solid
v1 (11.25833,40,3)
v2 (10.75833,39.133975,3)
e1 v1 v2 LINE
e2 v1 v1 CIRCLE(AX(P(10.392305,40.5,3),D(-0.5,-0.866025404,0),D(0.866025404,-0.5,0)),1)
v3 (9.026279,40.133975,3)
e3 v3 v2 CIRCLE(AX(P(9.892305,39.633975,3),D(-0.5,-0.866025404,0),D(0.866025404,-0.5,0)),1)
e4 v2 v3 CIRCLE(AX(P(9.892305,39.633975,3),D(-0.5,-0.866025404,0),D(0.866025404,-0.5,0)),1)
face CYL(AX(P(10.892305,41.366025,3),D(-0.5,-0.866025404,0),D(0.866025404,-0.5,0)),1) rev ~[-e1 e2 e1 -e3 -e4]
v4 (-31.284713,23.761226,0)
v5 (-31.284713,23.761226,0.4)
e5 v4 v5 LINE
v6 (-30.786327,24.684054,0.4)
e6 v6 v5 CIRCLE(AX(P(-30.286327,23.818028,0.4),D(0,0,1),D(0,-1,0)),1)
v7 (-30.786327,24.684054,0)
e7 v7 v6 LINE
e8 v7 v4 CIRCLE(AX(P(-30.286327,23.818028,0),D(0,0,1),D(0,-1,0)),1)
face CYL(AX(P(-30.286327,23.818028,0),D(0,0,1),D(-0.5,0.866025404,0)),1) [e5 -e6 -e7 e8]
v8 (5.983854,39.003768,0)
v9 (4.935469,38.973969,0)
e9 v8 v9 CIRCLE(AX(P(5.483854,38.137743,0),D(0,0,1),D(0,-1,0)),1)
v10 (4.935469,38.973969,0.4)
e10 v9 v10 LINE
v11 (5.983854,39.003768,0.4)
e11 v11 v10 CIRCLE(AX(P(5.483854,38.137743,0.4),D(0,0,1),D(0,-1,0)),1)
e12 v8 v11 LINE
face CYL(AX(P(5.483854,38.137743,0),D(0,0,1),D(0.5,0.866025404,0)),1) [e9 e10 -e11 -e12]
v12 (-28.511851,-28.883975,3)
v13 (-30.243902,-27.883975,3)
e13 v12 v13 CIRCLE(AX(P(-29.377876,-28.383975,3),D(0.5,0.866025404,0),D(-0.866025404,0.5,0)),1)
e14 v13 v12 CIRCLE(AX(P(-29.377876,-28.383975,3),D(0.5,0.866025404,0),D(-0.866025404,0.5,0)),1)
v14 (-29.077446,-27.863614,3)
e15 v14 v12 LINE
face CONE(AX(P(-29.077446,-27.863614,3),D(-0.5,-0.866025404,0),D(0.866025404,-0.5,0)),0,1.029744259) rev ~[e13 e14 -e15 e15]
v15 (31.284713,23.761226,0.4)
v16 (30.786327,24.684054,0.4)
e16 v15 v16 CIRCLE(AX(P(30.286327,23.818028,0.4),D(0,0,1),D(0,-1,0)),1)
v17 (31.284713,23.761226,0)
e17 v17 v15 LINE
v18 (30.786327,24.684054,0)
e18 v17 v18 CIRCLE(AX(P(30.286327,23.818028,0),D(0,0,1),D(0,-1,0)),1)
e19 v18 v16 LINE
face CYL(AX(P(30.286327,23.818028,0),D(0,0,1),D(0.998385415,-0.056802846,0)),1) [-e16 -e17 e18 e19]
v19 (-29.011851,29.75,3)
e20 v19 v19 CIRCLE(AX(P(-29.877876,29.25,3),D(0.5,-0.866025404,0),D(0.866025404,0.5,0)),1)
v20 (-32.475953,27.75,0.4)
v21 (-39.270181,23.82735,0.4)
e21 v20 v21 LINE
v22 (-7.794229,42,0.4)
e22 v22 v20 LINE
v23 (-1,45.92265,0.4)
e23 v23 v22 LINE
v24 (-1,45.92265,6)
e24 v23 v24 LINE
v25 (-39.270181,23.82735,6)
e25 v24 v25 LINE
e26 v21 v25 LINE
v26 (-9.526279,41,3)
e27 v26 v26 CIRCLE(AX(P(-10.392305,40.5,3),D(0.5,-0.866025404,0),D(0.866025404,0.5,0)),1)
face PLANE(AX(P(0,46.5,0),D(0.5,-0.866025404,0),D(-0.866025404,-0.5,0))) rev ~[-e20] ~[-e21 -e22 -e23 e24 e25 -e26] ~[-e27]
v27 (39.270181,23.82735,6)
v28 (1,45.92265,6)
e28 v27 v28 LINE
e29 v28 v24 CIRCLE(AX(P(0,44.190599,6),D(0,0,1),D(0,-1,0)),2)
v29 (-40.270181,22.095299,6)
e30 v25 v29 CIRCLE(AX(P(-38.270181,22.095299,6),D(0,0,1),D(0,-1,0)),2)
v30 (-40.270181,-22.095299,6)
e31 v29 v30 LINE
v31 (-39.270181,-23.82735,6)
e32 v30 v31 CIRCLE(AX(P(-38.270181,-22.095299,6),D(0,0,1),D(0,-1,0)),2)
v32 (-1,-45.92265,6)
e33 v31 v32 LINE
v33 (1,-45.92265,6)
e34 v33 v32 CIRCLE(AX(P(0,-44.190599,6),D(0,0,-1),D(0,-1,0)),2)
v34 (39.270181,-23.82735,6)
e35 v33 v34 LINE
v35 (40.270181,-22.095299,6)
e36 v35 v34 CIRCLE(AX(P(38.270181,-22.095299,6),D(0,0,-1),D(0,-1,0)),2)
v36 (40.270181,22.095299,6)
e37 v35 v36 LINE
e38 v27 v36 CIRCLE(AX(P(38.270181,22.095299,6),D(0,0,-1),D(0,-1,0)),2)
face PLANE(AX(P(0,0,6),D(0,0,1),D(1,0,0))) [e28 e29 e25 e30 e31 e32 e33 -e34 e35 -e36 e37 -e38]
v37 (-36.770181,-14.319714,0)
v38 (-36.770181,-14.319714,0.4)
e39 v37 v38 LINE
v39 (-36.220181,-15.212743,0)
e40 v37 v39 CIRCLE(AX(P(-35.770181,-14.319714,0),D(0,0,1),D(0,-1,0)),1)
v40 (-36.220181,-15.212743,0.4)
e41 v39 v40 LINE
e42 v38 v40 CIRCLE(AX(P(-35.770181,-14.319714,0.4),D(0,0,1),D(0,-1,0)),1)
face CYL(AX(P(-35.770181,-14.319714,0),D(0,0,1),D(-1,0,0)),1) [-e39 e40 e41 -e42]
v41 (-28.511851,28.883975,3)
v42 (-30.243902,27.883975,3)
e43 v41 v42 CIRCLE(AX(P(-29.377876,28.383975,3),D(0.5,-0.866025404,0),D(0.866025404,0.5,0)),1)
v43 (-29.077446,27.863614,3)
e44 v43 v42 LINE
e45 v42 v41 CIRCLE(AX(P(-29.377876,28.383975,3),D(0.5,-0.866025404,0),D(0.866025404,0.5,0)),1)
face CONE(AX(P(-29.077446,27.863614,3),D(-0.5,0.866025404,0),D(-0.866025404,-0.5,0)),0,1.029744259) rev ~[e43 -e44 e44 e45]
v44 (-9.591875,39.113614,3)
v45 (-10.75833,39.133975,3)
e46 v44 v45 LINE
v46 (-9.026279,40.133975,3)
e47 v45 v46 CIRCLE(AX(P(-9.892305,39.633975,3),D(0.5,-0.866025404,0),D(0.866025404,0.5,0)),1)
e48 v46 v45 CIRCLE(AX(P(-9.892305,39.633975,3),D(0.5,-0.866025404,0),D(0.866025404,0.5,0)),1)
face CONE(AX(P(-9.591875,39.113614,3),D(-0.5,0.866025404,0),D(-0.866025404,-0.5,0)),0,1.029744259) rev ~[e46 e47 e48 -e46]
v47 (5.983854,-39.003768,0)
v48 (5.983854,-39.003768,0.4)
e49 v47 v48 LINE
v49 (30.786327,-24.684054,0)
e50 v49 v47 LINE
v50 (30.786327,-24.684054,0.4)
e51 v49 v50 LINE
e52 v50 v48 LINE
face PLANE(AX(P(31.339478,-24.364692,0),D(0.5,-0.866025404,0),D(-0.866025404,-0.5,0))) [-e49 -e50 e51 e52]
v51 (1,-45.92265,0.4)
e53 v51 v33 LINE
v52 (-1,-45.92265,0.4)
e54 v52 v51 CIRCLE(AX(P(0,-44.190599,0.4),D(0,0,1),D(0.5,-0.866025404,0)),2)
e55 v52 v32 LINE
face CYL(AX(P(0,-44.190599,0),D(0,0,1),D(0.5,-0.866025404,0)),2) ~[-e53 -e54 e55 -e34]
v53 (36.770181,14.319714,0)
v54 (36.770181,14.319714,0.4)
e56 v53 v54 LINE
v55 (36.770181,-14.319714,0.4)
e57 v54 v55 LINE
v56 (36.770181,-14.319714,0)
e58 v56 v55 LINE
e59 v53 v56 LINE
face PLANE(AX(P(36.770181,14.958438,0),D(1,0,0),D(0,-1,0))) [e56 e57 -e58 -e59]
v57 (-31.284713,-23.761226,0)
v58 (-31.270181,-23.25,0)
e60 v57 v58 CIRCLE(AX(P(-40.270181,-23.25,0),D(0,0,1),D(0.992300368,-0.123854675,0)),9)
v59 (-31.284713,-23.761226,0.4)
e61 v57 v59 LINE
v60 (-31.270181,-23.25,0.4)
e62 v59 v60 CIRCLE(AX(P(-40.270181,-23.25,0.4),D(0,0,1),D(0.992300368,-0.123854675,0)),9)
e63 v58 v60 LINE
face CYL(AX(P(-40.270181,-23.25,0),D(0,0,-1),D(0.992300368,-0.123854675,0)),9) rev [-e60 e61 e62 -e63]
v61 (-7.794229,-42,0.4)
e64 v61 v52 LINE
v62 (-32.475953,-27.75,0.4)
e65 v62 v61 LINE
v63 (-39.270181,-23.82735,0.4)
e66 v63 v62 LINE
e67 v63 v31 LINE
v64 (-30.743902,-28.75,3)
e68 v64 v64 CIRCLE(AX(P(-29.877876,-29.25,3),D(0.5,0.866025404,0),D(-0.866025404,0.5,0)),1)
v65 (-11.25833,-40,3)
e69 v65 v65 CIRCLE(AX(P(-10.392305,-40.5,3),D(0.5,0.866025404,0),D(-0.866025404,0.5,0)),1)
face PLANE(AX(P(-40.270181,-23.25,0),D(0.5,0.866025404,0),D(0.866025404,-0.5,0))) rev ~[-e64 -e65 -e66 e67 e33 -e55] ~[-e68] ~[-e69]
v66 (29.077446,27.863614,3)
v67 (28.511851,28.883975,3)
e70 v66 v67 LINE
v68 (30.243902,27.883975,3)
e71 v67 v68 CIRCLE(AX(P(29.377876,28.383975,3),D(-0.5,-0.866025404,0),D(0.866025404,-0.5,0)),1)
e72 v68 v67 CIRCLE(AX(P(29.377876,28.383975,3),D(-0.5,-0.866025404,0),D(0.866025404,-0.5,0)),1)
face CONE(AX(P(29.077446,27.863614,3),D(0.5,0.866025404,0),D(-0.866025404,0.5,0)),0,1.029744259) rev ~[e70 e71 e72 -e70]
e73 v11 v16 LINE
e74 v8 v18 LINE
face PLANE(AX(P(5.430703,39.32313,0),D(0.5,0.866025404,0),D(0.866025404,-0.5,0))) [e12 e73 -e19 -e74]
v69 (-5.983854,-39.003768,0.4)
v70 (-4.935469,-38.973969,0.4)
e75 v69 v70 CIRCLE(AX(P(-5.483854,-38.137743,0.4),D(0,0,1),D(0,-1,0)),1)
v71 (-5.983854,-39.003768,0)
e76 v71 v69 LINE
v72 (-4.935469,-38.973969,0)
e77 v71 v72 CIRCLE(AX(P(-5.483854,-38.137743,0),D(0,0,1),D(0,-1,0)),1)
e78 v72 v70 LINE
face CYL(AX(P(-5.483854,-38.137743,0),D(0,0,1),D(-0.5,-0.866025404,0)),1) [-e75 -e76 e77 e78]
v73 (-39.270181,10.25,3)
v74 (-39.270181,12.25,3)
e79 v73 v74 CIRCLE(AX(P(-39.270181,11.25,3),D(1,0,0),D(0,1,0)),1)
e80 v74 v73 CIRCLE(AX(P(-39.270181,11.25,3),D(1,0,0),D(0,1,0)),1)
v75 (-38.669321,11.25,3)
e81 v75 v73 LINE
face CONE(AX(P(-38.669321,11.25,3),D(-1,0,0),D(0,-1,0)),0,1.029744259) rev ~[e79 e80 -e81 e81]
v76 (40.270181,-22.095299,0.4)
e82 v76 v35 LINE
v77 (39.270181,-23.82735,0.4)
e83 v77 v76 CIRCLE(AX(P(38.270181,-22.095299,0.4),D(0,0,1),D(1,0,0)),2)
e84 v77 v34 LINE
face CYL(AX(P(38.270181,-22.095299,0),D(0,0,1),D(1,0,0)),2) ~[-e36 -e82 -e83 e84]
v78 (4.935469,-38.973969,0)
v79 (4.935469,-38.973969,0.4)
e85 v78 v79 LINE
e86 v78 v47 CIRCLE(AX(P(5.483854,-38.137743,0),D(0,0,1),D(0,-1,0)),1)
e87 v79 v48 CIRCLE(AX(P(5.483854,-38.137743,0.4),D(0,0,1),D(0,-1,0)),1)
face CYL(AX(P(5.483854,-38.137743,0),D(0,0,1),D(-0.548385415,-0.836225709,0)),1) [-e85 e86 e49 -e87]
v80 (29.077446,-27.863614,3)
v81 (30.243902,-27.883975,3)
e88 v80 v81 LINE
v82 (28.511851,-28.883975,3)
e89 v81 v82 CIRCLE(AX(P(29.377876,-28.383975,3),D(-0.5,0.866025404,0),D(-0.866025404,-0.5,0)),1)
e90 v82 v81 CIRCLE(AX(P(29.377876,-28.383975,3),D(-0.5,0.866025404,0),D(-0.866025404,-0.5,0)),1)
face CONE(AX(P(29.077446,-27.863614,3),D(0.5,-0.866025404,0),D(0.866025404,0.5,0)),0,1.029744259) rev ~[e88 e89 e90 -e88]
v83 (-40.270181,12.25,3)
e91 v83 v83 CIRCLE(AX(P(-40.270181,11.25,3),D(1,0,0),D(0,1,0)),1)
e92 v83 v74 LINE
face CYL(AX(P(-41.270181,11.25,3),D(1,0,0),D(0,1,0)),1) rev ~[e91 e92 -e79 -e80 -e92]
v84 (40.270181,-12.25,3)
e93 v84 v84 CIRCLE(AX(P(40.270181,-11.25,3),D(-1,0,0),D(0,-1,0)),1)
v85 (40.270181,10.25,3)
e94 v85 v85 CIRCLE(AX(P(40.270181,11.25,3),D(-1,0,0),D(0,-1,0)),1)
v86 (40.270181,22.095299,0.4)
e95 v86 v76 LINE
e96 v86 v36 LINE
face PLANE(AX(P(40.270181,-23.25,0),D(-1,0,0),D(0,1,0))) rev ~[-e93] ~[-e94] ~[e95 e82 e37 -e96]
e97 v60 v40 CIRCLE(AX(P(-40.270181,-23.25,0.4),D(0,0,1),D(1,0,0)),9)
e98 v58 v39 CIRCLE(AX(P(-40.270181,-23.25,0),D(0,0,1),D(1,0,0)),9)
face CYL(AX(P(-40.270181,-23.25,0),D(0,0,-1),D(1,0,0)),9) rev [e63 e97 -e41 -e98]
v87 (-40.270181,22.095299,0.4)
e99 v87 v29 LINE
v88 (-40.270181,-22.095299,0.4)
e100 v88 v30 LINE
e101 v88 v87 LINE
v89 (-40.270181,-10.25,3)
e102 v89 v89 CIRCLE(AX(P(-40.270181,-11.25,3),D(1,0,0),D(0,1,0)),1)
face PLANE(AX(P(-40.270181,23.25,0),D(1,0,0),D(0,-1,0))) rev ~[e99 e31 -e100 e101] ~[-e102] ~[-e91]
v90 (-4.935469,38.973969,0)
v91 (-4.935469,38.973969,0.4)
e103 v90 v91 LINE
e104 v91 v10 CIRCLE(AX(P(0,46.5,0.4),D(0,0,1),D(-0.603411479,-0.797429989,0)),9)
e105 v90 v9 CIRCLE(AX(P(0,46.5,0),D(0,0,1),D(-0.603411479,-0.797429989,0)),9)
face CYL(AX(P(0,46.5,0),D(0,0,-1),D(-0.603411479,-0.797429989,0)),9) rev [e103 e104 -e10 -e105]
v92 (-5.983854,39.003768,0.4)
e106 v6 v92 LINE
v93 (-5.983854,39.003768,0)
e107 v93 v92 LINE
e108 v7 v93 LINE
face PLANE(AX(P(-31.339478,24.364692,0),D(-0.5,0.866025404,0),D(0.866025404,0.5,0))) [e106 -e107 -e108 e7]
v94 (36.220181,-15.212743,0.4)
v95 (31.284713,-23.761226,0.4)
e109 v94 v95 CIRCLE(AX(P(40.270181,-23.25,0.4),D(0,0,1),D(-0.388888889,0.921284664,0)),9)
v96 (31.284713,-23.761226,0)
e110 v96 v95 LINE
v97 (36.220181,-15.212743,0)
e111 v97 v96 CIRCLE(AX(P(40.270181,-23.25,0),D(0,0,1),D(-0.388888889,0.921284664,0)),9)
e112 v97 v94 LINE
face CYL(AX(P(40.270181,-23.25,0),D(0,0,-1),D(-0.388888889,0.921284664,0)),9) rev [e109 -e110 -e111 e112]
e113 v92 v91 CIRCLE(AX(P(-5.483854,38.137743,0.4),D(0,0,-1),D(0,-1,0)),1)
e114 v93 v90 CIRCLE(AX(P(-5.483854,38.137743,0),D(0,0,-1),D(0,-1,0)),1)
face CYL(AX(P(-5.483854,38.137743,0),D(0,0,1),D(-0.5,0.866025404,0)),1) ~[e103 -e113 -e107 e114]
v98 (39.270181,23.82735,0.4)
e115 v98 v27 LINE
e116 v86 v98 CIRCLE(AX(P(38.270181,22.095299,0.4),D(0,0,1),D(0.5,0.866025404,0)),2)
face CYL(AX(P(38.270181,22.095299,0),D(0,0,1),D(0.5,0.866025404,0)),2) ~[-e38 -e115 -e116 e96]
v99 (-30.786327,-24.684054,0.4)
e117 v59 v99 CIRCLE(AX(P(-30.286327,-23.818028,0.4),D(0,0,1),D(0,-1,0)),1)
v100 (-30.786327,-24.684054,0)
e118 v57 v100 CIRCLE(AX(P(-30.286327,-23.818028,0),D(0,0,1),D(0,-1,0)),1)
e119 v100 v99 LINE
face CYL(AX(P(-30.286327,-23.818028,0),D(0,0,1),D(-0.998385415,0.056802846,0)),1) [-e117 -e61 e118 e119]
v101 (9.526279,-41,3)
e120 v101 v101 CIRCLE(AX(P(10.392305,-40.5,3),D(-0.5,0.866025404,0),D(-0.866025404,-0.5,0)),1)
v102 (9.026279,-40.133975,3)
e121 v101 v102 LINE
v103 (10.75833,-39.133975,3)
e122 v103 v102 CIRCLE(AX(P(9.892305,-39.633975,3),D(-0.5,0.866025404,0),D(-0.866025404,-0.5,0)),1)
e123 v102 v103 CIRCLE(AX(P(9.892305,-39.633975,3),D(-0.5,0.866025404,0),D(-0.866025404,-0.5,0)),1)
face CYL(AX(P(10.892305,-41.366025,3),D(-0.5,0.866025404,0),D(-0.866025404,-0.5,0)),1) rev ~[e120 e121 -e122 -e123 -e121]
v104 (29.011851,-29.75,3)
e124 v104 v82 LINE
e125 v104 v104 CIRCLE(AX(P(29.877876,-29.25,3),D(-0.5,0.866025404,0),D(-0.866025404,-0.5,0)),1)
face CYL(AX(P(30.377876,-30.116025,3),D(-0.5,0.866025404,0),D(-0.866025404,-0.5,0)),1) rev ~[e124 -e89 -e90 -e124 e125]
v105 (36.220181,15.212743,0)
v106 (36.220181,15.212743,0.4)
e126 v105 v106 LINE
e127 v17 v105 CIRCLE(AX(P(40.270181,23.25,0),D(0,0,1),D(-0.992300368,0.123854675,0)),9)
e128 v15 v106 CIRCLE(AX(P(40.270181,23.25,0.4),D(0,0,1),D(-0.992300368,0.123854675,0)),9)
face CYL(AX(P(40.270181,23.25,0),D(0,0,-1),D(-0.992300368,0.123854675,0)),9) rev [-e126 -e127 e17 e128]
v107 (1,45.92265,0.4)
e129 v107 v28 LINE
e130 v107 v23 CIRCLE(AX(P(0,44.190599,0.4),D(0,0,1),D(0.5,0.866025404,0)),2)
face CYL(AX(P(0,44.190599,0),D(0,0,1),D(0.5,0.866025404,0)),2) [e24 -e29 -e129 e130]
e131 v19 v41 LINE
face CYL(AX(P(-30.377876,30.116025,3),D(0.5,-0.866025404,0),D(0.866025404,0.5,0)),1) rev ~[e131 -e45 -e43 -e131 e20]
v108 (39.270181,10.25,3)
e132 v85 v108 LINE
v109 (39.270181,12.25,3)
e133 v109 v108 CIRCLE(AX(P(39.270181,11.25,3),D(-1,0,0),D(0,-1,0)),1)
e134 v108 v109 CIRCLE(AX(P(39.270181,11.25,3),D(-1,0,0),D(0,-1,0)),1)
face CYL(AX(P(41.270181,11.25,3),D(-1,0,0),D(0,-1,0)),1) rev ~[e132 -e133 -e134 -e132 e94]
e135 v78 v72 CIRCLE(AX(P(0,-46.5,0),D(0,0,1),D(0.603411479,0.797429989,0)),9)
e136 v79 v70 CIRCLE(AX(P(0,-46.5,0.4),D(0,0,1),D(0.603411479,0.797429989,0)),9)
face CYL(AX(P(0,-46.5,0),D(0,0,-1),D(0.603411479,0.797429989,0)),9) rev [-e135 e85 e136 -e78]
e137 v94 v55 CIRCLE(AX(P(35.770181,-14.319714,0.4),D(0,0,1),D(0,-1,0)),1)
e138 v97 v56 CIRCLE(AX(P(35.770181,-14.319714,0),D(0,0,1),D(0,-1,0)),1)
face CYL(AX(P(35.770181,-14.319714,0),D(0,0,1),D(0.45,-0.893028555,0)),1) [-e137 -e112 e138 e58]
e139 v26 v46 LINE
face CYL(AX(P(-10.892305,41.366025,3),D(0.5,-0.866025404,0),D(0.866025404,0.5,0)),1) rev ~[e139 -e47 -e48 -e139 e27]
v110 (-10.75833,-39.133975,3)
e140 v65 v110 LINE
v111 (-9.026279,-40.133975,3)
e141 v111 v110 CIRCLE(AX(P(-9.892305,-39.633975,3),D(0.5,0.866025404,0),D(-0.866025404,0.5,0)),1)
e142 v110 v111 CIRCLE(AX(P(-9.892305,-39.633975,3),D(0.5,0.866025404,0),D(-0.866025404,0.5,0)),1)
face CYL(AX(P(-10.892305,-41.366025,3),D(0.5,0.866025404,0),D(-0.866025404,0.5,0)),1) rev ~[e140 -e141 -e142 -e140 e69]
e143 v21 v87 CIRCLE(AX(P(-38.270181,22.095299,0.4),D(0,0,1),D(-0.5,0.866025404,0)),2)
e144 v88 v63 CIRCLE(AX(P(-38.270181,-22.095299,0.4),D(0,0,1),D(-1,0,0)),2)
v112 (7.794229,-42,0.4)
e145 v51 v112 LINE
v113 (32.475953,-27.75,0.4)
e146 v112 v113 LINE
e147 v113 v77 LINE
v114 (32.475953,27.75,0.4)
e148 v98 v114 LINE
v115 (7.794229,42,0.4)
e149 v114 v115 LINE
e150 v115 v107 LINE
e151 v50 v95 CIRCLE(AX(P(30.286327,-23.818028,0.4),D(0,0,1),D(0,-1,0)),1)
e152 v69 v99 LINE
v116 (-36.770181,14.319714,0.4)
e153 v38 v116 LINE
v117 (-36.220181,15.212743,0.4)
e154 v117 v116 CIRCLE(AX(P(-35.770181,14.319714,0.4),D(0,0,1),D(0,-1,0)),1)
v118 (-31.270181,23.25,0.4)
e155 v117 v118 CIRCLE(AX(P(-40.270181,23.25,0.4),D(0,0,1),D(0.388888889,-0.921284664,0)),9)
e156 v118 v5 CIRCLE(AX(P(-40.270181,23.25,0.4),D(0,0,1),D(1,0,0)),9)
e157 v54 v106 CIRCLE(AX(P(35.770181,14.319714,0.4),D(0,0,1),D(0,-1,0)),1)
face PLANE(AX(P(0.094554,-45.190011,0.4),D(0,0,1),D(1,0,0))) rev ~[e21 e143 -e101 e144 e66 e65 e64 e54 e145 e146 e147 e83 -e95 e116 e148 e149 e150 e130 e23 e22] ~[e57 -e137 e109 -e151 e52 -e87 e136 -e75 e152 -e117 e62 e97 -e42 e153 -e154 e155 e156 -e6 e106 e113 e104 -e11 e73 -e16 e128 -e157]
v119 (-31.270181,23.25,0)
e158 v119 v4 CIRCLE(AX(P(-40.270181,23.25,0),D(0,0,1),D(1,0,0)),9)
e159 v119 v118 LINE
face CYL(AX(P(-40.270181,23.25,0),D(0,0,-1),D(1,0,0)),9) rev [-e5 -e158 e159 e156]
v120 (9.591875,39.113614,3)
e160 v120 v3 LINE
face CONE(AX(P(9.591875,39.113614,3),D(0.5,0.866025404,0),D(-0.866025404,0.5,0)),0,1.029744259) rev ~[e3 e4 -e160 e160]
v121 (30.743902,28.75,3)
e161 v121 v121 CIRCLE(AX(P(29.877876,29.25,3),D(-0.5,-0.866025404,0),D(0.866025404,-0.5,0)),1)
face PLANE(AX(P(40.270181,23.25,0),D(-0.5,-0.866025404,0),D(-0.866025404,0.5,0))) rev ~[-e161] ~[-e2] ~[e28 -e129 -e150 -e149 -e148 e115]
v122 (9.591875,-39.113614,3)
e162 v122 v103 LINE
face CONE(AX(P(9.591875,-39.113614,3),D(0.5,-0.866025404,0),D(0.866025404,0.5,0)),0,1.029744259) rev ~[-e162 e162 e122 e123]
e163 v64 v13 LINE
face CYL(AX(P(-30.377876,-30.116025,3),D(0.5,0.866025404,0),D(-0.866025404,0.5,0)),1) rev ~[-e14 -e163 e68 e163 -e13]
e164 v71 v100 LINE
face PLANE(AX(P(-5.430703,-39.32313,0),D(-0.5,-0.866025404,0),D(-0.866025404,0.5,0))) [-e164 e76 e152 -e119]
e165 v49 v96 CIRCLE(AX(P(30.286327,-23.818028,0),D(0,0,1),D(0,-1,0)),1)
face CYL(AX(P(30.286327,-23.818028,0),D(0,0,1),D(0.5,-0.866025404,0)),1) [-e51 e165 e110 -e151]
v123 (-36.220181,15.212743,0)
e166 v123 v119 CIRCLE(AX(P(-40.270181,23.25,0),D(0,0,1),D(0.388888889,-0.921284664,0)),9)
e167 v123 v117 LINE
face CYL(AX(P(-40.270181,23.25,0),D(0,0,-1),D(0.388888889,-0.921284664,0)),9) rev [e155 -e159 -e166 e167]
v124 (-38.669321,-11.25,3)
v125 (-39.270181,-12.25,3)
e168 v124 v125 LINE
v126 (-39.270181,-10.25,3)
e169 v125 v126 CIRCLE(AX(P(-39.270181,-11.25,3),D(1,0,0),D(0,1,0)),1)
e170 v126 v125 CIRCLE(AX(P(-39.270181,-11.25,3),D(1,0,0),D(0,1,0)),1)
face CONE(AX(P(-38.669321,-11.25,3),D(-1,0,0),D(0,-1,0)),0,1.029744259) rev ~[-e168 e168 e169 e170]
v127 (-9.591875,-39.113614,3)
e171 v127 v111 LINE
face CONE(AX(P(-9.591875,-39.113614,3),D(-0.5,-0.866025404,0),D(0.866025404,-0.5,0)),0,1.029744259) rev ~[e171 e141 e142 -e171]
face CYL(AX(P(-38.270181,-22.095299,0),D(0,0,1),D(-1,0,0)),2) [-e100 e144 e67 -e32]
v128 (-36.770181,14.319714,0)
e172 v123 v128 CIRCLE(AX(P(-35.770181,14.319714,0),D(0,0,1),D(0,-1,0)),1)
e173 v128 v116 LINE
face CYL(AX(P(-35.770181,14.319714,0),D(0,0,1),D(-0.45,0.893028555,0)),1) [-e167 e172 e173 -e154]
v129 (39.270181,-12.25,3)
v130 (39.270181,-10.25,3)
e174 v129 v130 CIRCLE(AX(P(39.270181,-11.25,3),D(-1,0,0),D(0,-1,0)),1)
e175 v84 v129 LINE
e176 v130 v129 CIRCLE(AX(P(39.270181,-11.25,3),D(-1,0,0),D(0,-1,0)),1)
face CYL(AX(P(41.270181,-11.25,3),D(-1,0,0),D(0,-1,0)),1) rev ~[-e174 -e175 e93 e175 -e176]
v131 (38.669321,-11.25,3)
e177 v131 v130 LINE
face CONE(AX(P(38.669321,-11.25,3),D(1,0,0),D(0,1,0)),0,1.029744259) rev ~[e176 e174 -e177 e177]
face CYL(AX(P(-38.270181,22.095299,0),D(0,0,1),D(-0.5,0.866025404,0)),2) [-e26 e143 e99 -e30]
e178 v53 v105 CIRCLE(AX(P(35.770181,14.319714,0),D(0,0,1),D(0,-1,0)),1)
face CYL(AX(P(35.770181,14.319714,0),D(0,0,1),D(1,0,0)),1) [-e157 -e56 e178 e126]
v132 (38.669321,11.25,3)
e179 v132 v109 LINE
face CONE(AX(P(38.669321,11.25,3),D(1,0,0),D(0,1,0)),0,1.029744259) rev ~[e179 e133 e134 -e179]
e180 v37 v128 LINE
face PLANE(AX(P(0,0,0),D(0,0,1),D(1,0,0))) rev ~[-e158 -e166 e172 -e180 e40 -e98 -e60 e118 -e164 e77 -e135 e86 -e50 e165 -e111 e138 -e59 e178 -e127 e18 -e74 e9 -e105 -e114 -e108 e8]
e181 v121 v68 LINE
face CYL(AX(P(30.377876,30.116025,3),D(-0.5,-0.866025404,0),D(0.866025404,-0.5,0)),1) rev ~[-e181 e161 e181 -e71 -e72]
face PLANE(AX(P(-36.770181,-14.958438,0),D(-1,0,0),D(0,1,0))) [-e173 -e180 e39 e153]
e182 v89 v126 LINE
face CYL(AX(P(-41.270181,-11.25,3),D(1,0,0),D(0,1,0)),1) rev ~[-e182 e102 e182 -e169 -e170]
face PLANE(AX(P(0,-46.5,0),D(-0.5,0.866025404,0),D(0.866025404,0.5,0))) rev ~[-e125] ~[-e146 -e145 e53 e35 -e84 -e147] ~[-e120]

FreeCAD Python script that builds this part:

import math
import FreeCAD as App
import Part
import Sketcher

V = App.Vector
Q = App.Units.Quantity


def edges_at(feature, points):
    """Names of the edges that pass closest to the given points."""
    edges = feature.Shape.Edges
    near = lambda p: min(range(len(edges)), key=lambda i: edges[i].distToShape(Part.Vertex(*p))[0])
    return sorted({f"Edge{near(p) + 1}" for p in points})

doc = App.newDocument("Part")
params = doc.addObject("Spreadsheet::Sheet", "Params")
for row, (alias, value) in enumerate([
    ("sketch1_height", "46.5 mm"),
    ("pad1_length", "6 mm"),
    ("sketch2_diameter", "2 mm"),
    ("hole_diameter", "2 mm"),
    ("hole_depth", "1 mm"),
    ("sketch3_diameter", "2 mm"),
    ("hole2_diameter", "2 mm"),
    ("hole2_depth", "1 mm"),
    ("sketch4_diameter", "2 mm"),
    ("hole3_diameter", "2 mm"),
    ("hole3_depth", "1 mm"),
    ("sketch5_diameter", "2 mm"),
    ("hole4_diameter", "2 mm"),
    ("hole4_depth", "1 mm"),
    ("sketch6_diameter", "2 mm"),
    ("hole5_diameter", "2 mm"),
    ("hole5_depth", "1 mm"),
    ("sketch7_diameter", "2 mm"),
    ("hole6_diameter", "2 mm"),
    ("hole6_depth", "1 mm"),
    ("fillet_radius", "2 mm"),
    ("sketch8_radius", "9 mm"),
    ("sketch8_height", "28.5 mm"),
    ("sketch8_length", "28.5 mm"),
    ("pocket1_length", "0.4 mm"),
    ("fillet2_radius", "1 mm"),
], start=1):
    params.set(f"A{row}", alias)
    params.set(f"B{row}", "=" + value)
    params.setAlias(f"B{row}", alias)

body = doc.addObject("PartDesign::Body", "Body")

# Sketch on XY plane
sketch1 = body.newObject("Sketcher::SketchObject", "Sketch")
sketch1.AttachmentSupport = (doc.getObject("XY_Plane"), [""])
sketch1.MapMode = "FlatFace"
sketch1.addGeometry([
    Part.LineSegment(V(40, 23, 0), V(0, 46, 0)),  # 0
    Part.LineSegment(V(0, 46, 0), V(-40, 23, 0)),  # 1
    Part.LineSegment(V(-40, 23, 0), V(-40, -23, 0)),  # 2
    Part.LineSegment(V(-40, -23, 0), V(0, -46, 0)),  # 3
    Part.LineSegment(V(0, -46, 0), V(40, -23, 0)),  # 4
    Part.LineSegment(V(40, -23, 0), V(40, 23, 0)),  # 5
], False)
sketch1.addConstraint([
    Sketcher.Constraint("Coincident", 0, 2, 1, 1),
    Sketcher.Constraint("Coincident", 1, 2, 2, 1),
    Sketcher.Constraint("Coincident", 2, 2, 3, 1),
    Sketcher.Constraint("Coincident", 3, 2, 4, 1),
    Sketcher.Constraint("Coincident", 4, 2, 5, 1),
    Sketcher.Constraint("Coincident", 5, 2, 0, 1),
    Sketcher.Constraint("Vertical", 2),
    Sketcher.Constraint("Vertical", 5),
    Sketcher.Constraint("Symmetric", 0, 2, 3, 2, -1, 1),
    Sketcher.Constraint("Symmetric", 1, 2, 4, 2, -1, 1),
    Sketcher.Constraint("PointOnObject", 0, 2, -2),
    Sketcher.Constraint("Parallel", 0, 3),
    Sketcher.Constraint("Horizontal", 2, 2, 4, 2),
    Sketcher.Constraint("Angle", 0, Q("150 deg")),
    Sketcher.Constraint("DistanceY", 2, 2, 2, 1, 46.5),
    Sketcher.Constraint("DistanceY", 3, 2, 0, 2, 93.0),
])
sketch1.setExpression("Constraints[14]", "Params.sketch1_height")
pad1 = body.newObject("PartDesign::Pad", "Pad")
pad1.Profile = sketch1
pad1.setExpression("Length", "Params.pad1_length")

# Sketch on YZ plane
sketch2 = body.newObject("Sketcher::SketchObject", "Sketch001")
sketch2.AttachmentSupport = (doc.getObject("YZ_Plane"), [""])
sketch2.MapMode = "FlatFace"
sketch2.AttachmentOffset = App.Placement(V(0, 0, -40.270181), App.Rotation())
sketch2.addGeometry([
    Part.Circle(V(11.2, 3, 0), V(0, 0, 1), 1),
    Part.Circle(V(-11.2, 3, 0), V(0, 0, 1), 1),
], False)
sketch2.addConstraint([
    Sketcher.Constraint("Equal", 0, 1),
    Sketcher.Constraint("Symmetric", 0, 3, 1, 3, -2),
    Sketcher.Constraint("Diameter", 0, 2.0),
    Sketcher.Constraint("DistanceY", -1, 1, 0, 3, 3.0),
    Sketcher.Constraint("DistanceX", 1, 3, 0, 3, 22.5),
])
sketch2.setExpression("Constraints[2]", "Params.sketch2_diameter")
doc.recompute()
hole = body.newObject("PartDesign::Hole", "Hole")
hole.Profile = sketch2
hole.ThreadType = "None"
hole.setExpression("Diameter", "Params.hole_diameter")
hole.DepthType = "Dimension"
hole.setExpression("Depth", "Params.hole_depth")
hole.DrillPoint = "Angled"
hole.DrillPointAngle = 118
hole.Reversed = True

# Sketch on an angled plane
sketch3 = body.newObject("Sketcher::SketchObject", "Sketch002")
sketch3.Placement = App.Placement(V(-20.135091, 34.875, 0), App.Rotation(V(-0.866025404, -0.5, 0), V(0, 0, 1), V(-0.5, 0.866025404, 0), "ZXY"))
sketch3.addGeometry([
    Part.Circle(V(-11.3, 3, 0), V(0, 0, 1), 1),
    Part.Circle(V(11.3, 3, 0), V(0, 0, 1), 1),
], False)
sketch3.addConstraint([
    Sketcher.Constraint("Equal", 0, 1),
    Sketcher.Constraint("Symmetric", 0, 3, 1, 3, -2),
    Sketcher.Constraint("Diameter", 0, 2.0),
    Sketcher.Constraint("DistanceY", -1, 1, 0, 3, 3.0),
    Sketcher.Constraint("DistanceX", 0, 3, 1, 3, 22.5),
])
sketch3.setExpression("Constraints[2]", "Params.sketch3_diameter")
doc.recompute()
hole2 = body.newObject("PartDesign::Hole", "Hole001")
hole2.Profile = sketch3
hole2.ThreadType = "None"
hole2.setExpression("Diameter", "Params.hole2_diameter")
hole2.DepthType = "Dimension"
hole2.setExpression("Depth", "Params.hole2_depth")
hole2.DrillPoint = "Angled"
hole2.DrillPointAngle = 118

# Sketch on an angled plane
sketch4 = body.newObject("Sketcher::SketchObject", "Sketch003")
sketch4.Placement = App.Placement(V(20.135091, 34.875, 0), App.Rotation(V(-0.866025404, 0.5, 0), V(0, 0, 1), V(0.5, 0.866025404, 0), "ZXY"))
sketch4.addGeometry([
    Part.Circle(V(11.3, 3, 0), V(0, 0, 1), 1),
    Part.Circle(V(-11.3, 3, 0), V(0, 0, 1), 1),
], False)
sketch4.addConstraint([
    Sketcher.Constraint("Equal", 0, 1),
    Sketcher.Constraint("Symmetric", 0, 3, 1, 3, -2),
    Sketcher.Constraint("Diameter", 0, 2.0),
    Sketcher.Constraint("DistanceY", -1, 1, 0, 3, 3.0),
    Sketcher.Constraint("DistanceX", 1, 3, 0, 3, 22.5),
])
sketch4.setExpression("Constraints[2]", "Params.sketch4_diameter")
doc.recompute()
hole3 = body.newObject("PartDesign::Hole", "Hole002")
hole3.Profile = sketch4
hole3.ThreadType = "None"
hole3.setExpression("Diameter", "Params.hole3_diameter")
hole3.DepthType = "Dimension"
hole3.setExpression("Depth", "Params.hole3_depth")
hole3.DrillPoint = "Angled"
hole3.DrillPointAngle = 118

# Sketch on YZ plane
sketch5 = body.newObject("Sketcher::SketchObject", "Sketch004")
sketch5.AttachmentSupport = (doc.getObject("YZ_Plane"), [""])
sketch5.MapMode = "FlatFace"
sketch5.AttachmentOffset = App.Placement(V(0, 0, 40.270181), App.Rotation())
sketch5.addGeometry([
    Part.Circle(V(11.2, 3, 0), V(0, 0, 1), 1),
    Part.Circle(V(-11.2, 3, 0), V(0, 0, 1), 1),
], False)
sketch5.addConstraint([
    Sketcher.Constraint("Equal", 0, 1),
    Sketcher.Constraint("Symmetric", 0, 3, 1, 3, -2),
    Sketcher.Constraint("Diameter", 0, 2.0),
    Sketcher.Constraint("DistanceY", -1, 1, 0, 3, 3.0),
    Sketcher.Constraint("DistanceX", 1, 3, 0, 3, 22.5),
])
sketch5.setExpression("Constraints[2]", "Params.sketch5_diameter")
doc.recompute()
hole4 = body.newObject("PartDesign::Hole", "Hole003")
hole4.Profile = sketch5
hole4.ThreadType = "None"
hole4.setExpression("Diameter", "Params.hole4_diameter")
hole4.DepthType = "Dimension"
hole4.setExpression("Depth", "Params.hole4_depth")
hole4.DrillPoint = "Angled"
hole4.DrillPointAngle = 118

# Sketch on an angled plane
sketch6 = body.newObject("Sketcher::SketchObject", "Sketch005")
sketch6.Placement = App.Placement(V(20.135091, -34.875, 0), App.Rotation(V(0.866025404, 0.5, 0), V(0, 0, 1), V(0.5, -0.866025404, 0), "ZXY"))
sketch6.addGeometry([
    Part.Circle(V(11.3, 3, 0), V(0, 0, 1), 1),
    Part.Circle(V(-11.3, 3, 0), V(0, 0, 1), 1),
], False)
sketch6.addConstraint([
    Sketcher.Constraint("Equal", 0, 1),
    Sketcher.Constraint("Symmetric", 0, 3, 1, 3, -2),
    Sketcher.Constraint("Diameter", 0, 2.0),
    Sketcher.Constraint("DistanceY", -1, 1, 0, 3, 3.0),
    Sketcher.Constraint("DistanceX", 1, 3, 0, 3, 22.5),
])
sketch6.setExpression("Constraints[2]", "Params.sketch6_diameter")
doc.recompute()
hole5 = body.newObject("PartDesign::Hole", "Hole004")
hole5.Profile = sketch6
hole5.ThreadType = "None"
hole5.setExpression("Diameter", "Params.hole5_diameter")
hole5.DepthType = "Dimension"
hole5.setExpression("Depth", "Params.hole5_depth")
hole5.DrillPoint = "Angled"
hole5.DrillPointAngle = 118

# Sketch on an angled plane
sketch7 = body.newObject("Sketcher::SketchObject", "Sketch006")
sketch7.Placement = App.Placement(V(-20.135091, -34.875, 0), App.Rotation(V(0.866025404, -0.5, 0), V(0, 0, 1), V(-0.5, -0.866025404, 0), "ZXY"))
sketch7.addGeometry([
    Part.Circle(V(-11.3, 3, 0), V(0, 0, 1), 1),
    Part.Circle(V(11.3, 3, 0), V(0, 0, 1), 1),
], False)
sketch7.addConstraint([
    Sketcher.Constraint("Equal", 0, 1),
    Sketcher.Constraint("Symmetric", 0, 3, 1, 3, -2),
    Sketcher.Constraint("Diameter", 0, 2.0),
    Sketcher.Constraint("DistanceY", -1, 1, 0, 3, 3.0),
    Sketcher.Constraint("DistanceX", 0, 3, 1, 3, 22.5),
])
sketch7.setExpression("Constraints[2]", "Params.sketch7_diameter")
doc.recompute()
hole6 = body.newObject("PartDesign::Hole", "Hole005")
hole6.Profile = sketch7
hole6.ThreadType = "None"
hole6.setExpression("Diameter", "Params.hole6_diameter")
hole6.DepthType = "Dimension"
hole6.setExpression("Depth", "Params.hole6_depth")
hole6.DrillPoint = "Angled"
hole6.DrillPointAngle = 118
doc.recompute()

fillet = body.newObject("PartDesign::Fillet", "Fillet")
fillet.Base = (hole6, edges_at(hole6, [
    (-40.27, 23.25, 3),
    (0, 46.5, 3),
    (40.27, 23.25, 3),
    (40.27, -23.25, 3),
    (-40.27, -23.25, 3),
    (0, -46.5, 3),
]))
fillet.setExpression("Radius", "Params.fillet_radius")

# Sketch on XY plane
sketch8 = body.newObject("Sketcher::SketchObject", "Sketch007")
sketch8.AttachmentSupport = (doc.getObject("XY_Plane"), [""])
sketch8.MapMode = "FlatFace"
sketch8.addGeometry([
    Part.LineSegment(V(32.5, 27.8, 0), V(7.8, 42, 0)),  # 0
    Part.ArcOfCircle(Part.Circle(V(0, 46.5, 0), V(0, 0, 1), 9), math.radians(-30), math.radians(0)),  # 1
    Part.ArcOfCircle(Part.Circle(V(0, 46.5, 0), V(0, 0, 1), 9), math.radians(0), math.radians(210)),  # 2
    Part.LineSegment(V(-7.8, 42, 0), V(-32.5, 27.8, 0)),  # 3
    Part.ArcOfCircle(Part.Circle(V(-40.3, 23.2, 0), V(0, 0, 1), 9), math.radians(30), math.radians(270)),  # 4
    Part.LineSegment(V(-40.3, 14.2, 0), V(-40.3, -14.2, 0)),  # 5
    Part.ArcOfCircle(Part.Circle(V(-40.3, -23.2, 0), V(0, 0, 1), 9), math.radians(90), math.radians(330)),  # 6
    Part.LineSegment(V(-32.5, -27.8, 0), V(-7.8, -42, 0)),  # 7
    Part.ArcOfCircle(Part.Circle(V(0, -46.5, 0), V(0, 0, 1), 9), math.radians(150), math.radians(360)),  # 8
    Part.ArcOfCircle(Part.Circle(V(0, -46.5, 0), V(0, 0, 1), 9), math.radians(0), math.radians(30)),  # 9
    Part.LineSegment(V(7.8, -42, 0), V(32.5, -27.8, 0)),  # 10
    Part.ArcOfCircle(Part.Circle(V(40.3, -23.2, 0), V(0, 0, 1), 9), math.radians(-150), math.radians(0)),  # 11
    Part.ArcOfCircle(Part.Circle(V(40.3, -23.2, 0), V(0, 0, 1), 9), math.radians(0), math.radians(90)),  # 12
    Part.LineSegment(V(40.3, -14.2, 0), V(40.3, 14.2, 0)),  # 13
    Part.ArcOfCircle(Part.Circle(V(40.3, 23.2, 0), V(0, 0, 1), 9), math.radians(-90), math.radians(0)),  # 14
    Part.ArcOfCircle(Part.Circle(V(40.3, 23.2, 0), V(0, 0, 1), 9), math.radians(0), math.radians(150)),  # 15
    Part.ArcOfCircle(Part.Circle(V(0, 46.5, 0), V(0, 0, 1), 9), math.radians(-127), math.radians(-53)),  # 16
    Part.LineSegment(V(5.4, 39.3, 0), V(31.3, 24.4, 0)),  # 17
    Part.ArcOfCircle(Part.Circle(V(40.3, 23.2, 0), V(0, 0, 1), 9), math.radians(173), math.radians(247)),  # 18
    Part.LineSegment(V(36.8, 15, 0), V(36.8, -15, 0)),  # 19
    Part.ArcOfCircle(Part.Circle(V(40.3, -23.2, 0), V(0, 0, 1), 9), math.radians(113), math.radians(187)),  # 20
    Part.LineSegment(V(31.3, -24.4, 0), V(5.4, -39.3, 0)),  # 21
    Part.ArcOfCircle(Part.Circle(V(0, -46.5, 0), V(0, 0, 1), 9), math.radians(53), math.radians(127)),  # 22
    Part.LineSegment(V(-5.4, -39.3, 0), V(-31.3, -24.4, 0)),  # 23
    Part.ArcOfCircle(Part.Circle(V(-40.3, -23.3, 0), V(0, 0, 1), 9), math.radians(-7.11), math.radians(0)),  # 24
    Part.ArcOfCircle(Part.Circle(V(-40.3, -23.2, 0), V(0, 0, 1), 9), math.radians(0), math.radians(67)),  # 25
    Part.LineSegment(V(-36.8, -15, 0), V(-36.8, 15, 0)),  # 26
    Part.ArcOfCircle(Part.Circle(V(-40.3, 23.2, 0), V(0, 0, 1), 9), math.radians(-67), math.radians(0)),  # 27
    Part.ArcOfCircle(Part.Circle(V(-40.3, 23.3, 0), V(0, 0, 1), 9), math.radians(0), math.radians(7.11)),  # 28
    Part.LineSegment(V(-31.3, 24.4, 0), V(-5.4, 39.3, 0)),  # 29
], False)
sketch8.addConstraint([
    Sketcher.Constraint("Coincident", 0, 2, 1, 1),
    Sketcher.Constraint("Tangent", 1, 2, 2, 1),
    Sketcher.Constraint("Coincident", 2, 2, 3, 1),
    Sketcher.Constraint("Coincident", 3, 2, 4, 1),
    Sketcher.Constraint("Coincident", 4, 2, 5, 1),
    Sketcher.Constraint("Coincident", 5, 2, 6, 1),
    Sketcher.Constraint("Coincident", 6, 2, 7, 1),
    Sketcher.Constraint("Coincident", 7, 2, 8, 1),
    Sketcher.Constraint("Tangent", 8, 2, 9, 1),
    Sketcher.Constraint("Coincident", 9, 2, 10, 1),
    Sketcher.Constraint("Coincident", 10, 2, 11, 1),
    Sketcher.Constraint("Tangent", 11, 2, 12, 1),
    Sketcher.Constraint("Coincident", 12, 2, 13, 1),
    Sketcher.Constraint("Coincident", 13, 2, 14, 1),
    Sketcher.Constraint("Tangent", 14, 2, 15, 1),
    Sketcher.Constraint("Coincident", 15, 2, 0, 1),
    Sketcher.Constraint("Coincident", 16, 2, 17, 1),
    Sketcher.Constraint("Coincident", 17, 2, 18, 1),
    Sketcher.Constraint("Coincident", 18, 2, 19, 1),
    Sketcher.Constraint("Coincident", 19, 2, 20, 1),
    Sketcher.Constraint("Coincident", 20, 2, 21, 1),
    Sketcher.Constraint("Coincident", 21, 2, 22, 1),
    Sketcher.Constraint("Coincident", 22, 2, 23, 1),
    Sketcher.Constraint("Coincident", 23, 2, 24, 1),
    Sketcher.Constraint("Tangent", 24, 2, 25, 1),
    Sketcher.Constraint("Coincident", 25, 2, 26, 1),
    Sketcher.Constraint("Coincident", 26, 2, 27, 1),
    Sketcher.Constraint("Tangent", 27, 2, 28, 1),
    Sketcher.Constraint("Coincident", 28, 2, 29, 1),
    Sketcher.Constraint("Coincident", 29, 2, 16, 1),
    Sketcher.Constraint("Vertical", 5),
    Sketcher.Constraint("Vertical", 13),
    Sketcher.Constraint("Vertical", 19),
    Sketcher.Constraint("Vertical", 26),
    Sketcher.Constraint("Coincident", 16, 3, 1, 3),
    Sketcher.Constraint("Coincident", 18, 3, 14, 3),
    Sketcher.Constraint("Coincident", 20, 3, 11, 3),
    Sketcher.Constraint("Coincident", 22, 3, 8, 3),
    Sketcher.Constraint("Coincident", 24, 3, 6, 3),
    Sketcher.Constraint("Coincident", 27, 3, 4, 3),
    Sketcher.Constraint("Equal", 1, 2),
    Sketcher.Constraint("Equal", 2, 4),
    Sketcher.Constraint("Equal", 4, 6),
    Sketcher.Constraint("Equal", 6, 8),
    Sketcher.Constraint("Equal", 8, 9),
    Sketcher.Constraint("Equal", 9, 11),
    Sketcher.Constraint("Equal", 11, 12),
    Sketcher.Constraint("Equal", 12, 14),
    Sketcher.Constraint("Equal", 14, 15),
    Sketcher.Constraint("Equal", 15, 16),
    Sketcher.Constraint("Equal", 16, 18),
    Sketcher.Constraint("Equal", 18, 20),
    Sketcher.Constraint("Equal", 20, 22),
    Sketcher.Constraint("Equal", 22, 24),
    Sketcher.Constraint("Equal", 24, 25),
    Sketcher.Constraint("Equal", 25, 27),
    Sketcher.Constraint("Equal", 27, 28),
    Sketcher.Constraint("Symmetric", 1, 3, 8, 3, -1, 1),
    Sketcher.Constraint("Symmetric", 4, 3, 11, 3, -1, 1),
    Sketcher.Constraint("Symmetric", 6, 3, 14, 3, -1, 1),
    Sketcher.Constraint("Symmetric", 6, 3, 11, 3, -2),
    Sketcher.Constraint("Symmetric", 0, 2, 2, 2, -2),
    Sketcher.Constraint("Parallel", 0, 7),
    Sketcher.Constraint("Parallel", 3, 10),
    Sketcher.Constraint("Parallel", 7, 17),
    Sketcher.Constraint("Parallel", 10, 21),
    Sketcher.Constraint("Parallel", 17, 23),
    Sketcher.Constraint("Parallel", 21, 29),
    Sketcher.Constraint("Horizontal", 16, 3, 1, 2),
    Sketcher.Constraint("Horizontal", 22, 3, 8, 2),
    Sketcher.Constraint("Horizontal", 7, 2, 9, 2),
    Sketcher.Constraint("Horizontal", 6, 2, 10, 2),
    Sketcher.Constraint("Horizontal", 25, 3, 11, 2),
    Sketcher.Constraint("Horizontal", 28, 3, 14, 2),
    Sketcher.Constraint("Horizontal", 21, 2, 22, 2),
    Sketcher.Constraint("Horizontal", 11, 2, 24, 2),
    Sketcher.Constraint("Horizontal", 19, 2, 25, 2),
    Sketcher.Constraint("Horizontal", 14, 2, 27, 2),
    Sketcher.Constraint("Horizontal", 17, 2, 28, 2),
    Sketcher.Constraint("Vertical", 28, 3, 4, 2),
    Sketcher.Constraint("Vertical", 3, 2, 6, 2),
    Sketcher.Constraint("Vertical", 20, 3, 12, 2),
    Sketcher.Constraint("Vertical", 17, 2, 20, 2),
    Sketcher.Constraint("Radius", 1, 9.0),
    Sketcher.Constraint("Angle", 0, Q("150 deg")),
    Sketcher.Constraint("DistanceY", 5, 2, 5, 1, 28.5),
    Sketcher.Constraint("DistanceY", -1, 1, 0, 2, 42.0),
    Sketcher.Constraint("DistanceY", 8, 3, 1, 3, 93.0),
    Sketcher.Constraint("Distance", 0, 28.5),
    Sketcher.Constraint("DistanceX", 18, 2, 13, 2, 3.5),
    Sketcher.Constraint("DistanceY", -1, 1, 16, 2, 39.32313),
])
sketch8.setExpression("Constraints[83]", "Params.sketch8_radius")
sketch8.setExpression("Constraints[85]", "Params.sketch8_height")
sketch8.setExpression("Constraints[88]", "Params.sketch8_length")
pocket1 = body.newObject("PartDesign::Pocket", "Pocket")
pocket1.Profile = sketch8
pocket1.setExpression("Length", "Params.pocket1_length")
pocket1.Reversed = True
doc.recompute()

fillet2 = body.newObject("PartDesign::Fillet", "Fillet001")
fillet2.Base = (pocket1, edges_at(pocket1, [
    (36.77, 14.958, 0.2),
    (36.77, -14.958, 0.2),
    (31.339, -24.365, 0.2),
    (5.431, -39.323, 0.2),
    (-5.431, -39.323, 0.2),
    (-31.339, -24.365, 0.2),
    (-36.77, -14.958, 0.2),
    (-36.77, 14.958, 0.2),
    (-31.339, 24.365, 0.2),
    (-5.431, 39.323, 0.2),
    (5.431, 39.323, 0.2),
    (31.339, 24.365, 0.2),
]))
fillet2.setExpression("Radius", "Params.fillet2_radius")

doc.recompute()
